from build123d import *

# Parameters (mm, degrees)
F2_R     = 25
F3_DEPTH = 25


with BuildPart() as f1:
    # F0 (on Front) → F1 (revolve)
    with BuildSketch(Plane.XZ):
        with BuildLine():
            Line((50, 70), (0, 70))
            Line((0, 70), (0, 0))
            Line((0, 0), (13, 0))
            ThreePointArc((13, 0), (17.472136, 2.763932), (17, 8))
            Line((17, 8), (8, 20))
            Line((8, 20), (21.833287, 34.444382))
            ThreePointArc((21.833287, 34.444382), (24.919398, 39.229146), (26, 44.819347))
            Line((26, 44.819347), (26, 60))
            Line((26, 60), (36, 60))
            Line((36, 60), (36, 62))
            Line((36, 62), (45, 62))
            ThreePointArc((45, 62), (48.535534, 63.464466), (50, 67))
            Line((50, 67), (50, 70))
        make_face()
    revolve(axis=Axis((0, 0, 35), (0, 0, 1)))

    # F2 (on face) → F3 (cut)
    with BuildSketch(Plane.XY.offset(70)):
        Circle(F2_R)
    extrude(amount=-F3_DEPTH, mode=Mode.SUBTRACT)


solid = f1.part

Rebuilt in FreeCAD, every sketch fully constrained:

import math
import FreeCAD as App
import Part
import Sketcher
from FreeCAD import Vector

doc = App.newDocument("Part")
body = doc.addObject("PartDesign::Body", "Body")

sketch1 = doc.addObject("Sketcher::SketchObject", "Sketch")
body.addObject(sketch1)
sketch1.AttachmentSupport = (doc.XZ_Plane, [""])
sketch1.MapMode = "FlatFace"
sketch1.addGeometry(Part.LineSegment(Vector(50, 70, 0), Vector(0, 70, 0)), False)
sketch1.addGeometry(Part.LineSegment(Vector(0, 70, 0), Vector(0, 0, 0)), False)
sketch1.addGeometry(Part.LineSegment(Vector(0, 0, 0), Vector(13, 0, 0)), False)
sketch1.addGeometry(Part.ArcOfCircle(Part.Circle(Vector(13, 5, 0), Vector(0, 0, 1), 5), math.radians(-90), math.radians(37)), False)
sketch1.addGeometry(Part.LineSegment(Vector(17, 8, 0), Vector(8, 20, 0)), False)
sketch1.addGeometry(Part.LineSegment(Vector(8, 20, 0), Vector(21.8, 34.4, 0)), False)
sketch1.addGeometry(Part.ArcOfCircle(Part.Circle(Vector(11, 44.8, 0), Vector(0, 0, 1), 15), math.radians(-44), math.radians(0)), False)
sketch1.addGeometry(Part.LineSegment(Vector(26, 44.8, 0), Vector(26, 60, 0)), False)
sketch1.addGeometry(Part.LineSegment(Vector(26, 60, 0), Vector(36, 60, 0)), False)
sketch1.addGeometry(Part.LineSegment(Vector(36, 60, 0), Vector(36, 62, 0)), False)
sketch1.addGeometry(Part.LineSegment(Vector(36, 62, 0), Vector(45, 62, 0)), False)
sketch1.addGeometry(Part.ArcOfCircle(Part.Circle(Vector(45, 67, 0), Vector(0, 0, 1), 5), math.radians(-90), math.radians(0)), False)
sketch1.addGeometry(Part.LineSegment(Vector(50, 67, 0), Vector(50, 70, 0)), False)
sketch1.addConstraint(Sketcher.Constraint("Coincident", 0, 2, 1, 1))
sketch1.addConstraint(Sketcher.Constraint("Coincident", 1, 2, 2, 1))
sketch1.addConstraint(Sketcher.Constraint("Tangent", 2, 2, 3, 1))
sketch1.addConstraint(Sketcher.Constraint("Tangent", 3, 2, 4, 1))
sketch1.addConstraint(Sketcher.Constraint("Coincident", 4, 2, 5, 1))
sketch1.addConstraint(Sketcher.Constraint("Tangent", 5, 2, 6, 1))
sketch1.addConstraint(Sketcher.Constraint("Tangent", 6, 2, 7, 1))
sketch1.addConstraint(Sketcher.Constraint("Coincident", 7, 2, 8, 1))
sketch1.addConstraint(Sketcher.Constraint("Coincident", 8, 2, 9, 1))
sketch1.addConstraint(Sketcher.Constraint("Coincident", 9, 2, 10, 1))
sketch1.addConstraint(Sketcher.Constraint("Tangent", 10, 2, 11, 1))
sketch1.addConstraint(Sketcher.Constraint("Tangent", 11, 2, 12, 1))
sketch1.addConstraint(Sketcher.Constraint("Coincident", 12, 2, 0, 1))
sketch1.addConstraint(Sketcher.Constraint("Horizontal", 0))
sketch1.addConstraint(Sketcher.Constraint("Vertical", 1))
sketch1.addConstraint(Sketcher.Constraint("Horizontal", 2))
sketch1.addConstraint(Sketcher.Constraint("Vertical", 7))
sketch1.addConstraint(Sketcher.Constraint("Horizontal", 8))
sketch1.addConstraint(Sketcher.Constraint("Vertical", 9))
sketch1.addConstraint(Sketcher.Constraint("Horizontal", 10))
sketch1.addConstraint(Sketcher.Constraint("Vertical", 12))
sketch1.addConstraint(Sketcher.Constraint("Coincident", 1, 2, -1, 1))
sketch1.addConstraint(Sketcher.Constraint("Equal", 3, 11))
sketch1.addConstraint(Sketcher.Constraint("Radius", 3, 5.0))
sketch1.addConstraint(Sketcher.Constraint("DistanceX", 0, 2, 0, 1, 50.0))
sketch1.addConstraint(Sketcher.Constraint("DistanceX", 2, 1, 2, 2, 13.0))
sketch1.addConstraint(Sketcher.Constraint("DistanceX", 8, 1, 8, 2, 10.0))
sketch1.addConstraint(Sketcher.Constraint("DistanceX", 10, 1, 10, 2, 9.0))
sketch1.addConstraint(Sketcher.Constraint("DistanceY", 1, 2, 1, 1, 70.0))
sketch1.addConstraint(Sketcher.Constraint("DistanceY", 9, 1, 9, 2, 2.0))
sketch1.addConstraint(Sketcher.Constraint("DistanceY", 12, 1, 12, 2, 3.0))
sketch1.addConstraint(Sketcher.Constraint("Distance", 4, 15.0))
sketch1.addConstraint(Sketcher.Constraint("Distance", 5, 20.0))
sketch1.addConstraint(Sketcher.Constraint("DistanceX", -1, 1, 3, 2, 17.0))
sketch1.addConstraint(Sketcher.Constraint("Radius", 6, 15.000007))
revolution = doc.addObject("PartDesign::Revolution", "Revolution")
body.addObject(revolution)
revolution.Profile = sketch1
revolution.ReferenceAxis = (sketch1, ["V_Axis"])
revolution.Angle = 360

sketch2 = doc.addObject("Sketcher::SketchObject", "Sketch001")
body.addObject(sketch2)
sketch2.AttachmentSupport = (doc.XY_Plane, [""])
sketch2.MapMode = "FlatFace"
sketch2.AttachmentOffset = App.Placement(Vector(0, 0, 70), App.Rotation())
sketch2.addGeometry(Part.Circle(Vector(0, 0, 0), Vector(0, 0, 1), 25), False)
sketch2.addConstraint(Sketcher.Constraint("Coincident", 0, 3, -1, 1))
sketch2.addConstraint(Sketcher.Constraint("Diameter", 0, 50.0))
pocket1 = doc.addObject("PartDesign::Pocket", "Pocket")
body.addObject(pocket1)
pocket1.Profile = sketch2
pocket1.Length = 25

doc.recompute()
